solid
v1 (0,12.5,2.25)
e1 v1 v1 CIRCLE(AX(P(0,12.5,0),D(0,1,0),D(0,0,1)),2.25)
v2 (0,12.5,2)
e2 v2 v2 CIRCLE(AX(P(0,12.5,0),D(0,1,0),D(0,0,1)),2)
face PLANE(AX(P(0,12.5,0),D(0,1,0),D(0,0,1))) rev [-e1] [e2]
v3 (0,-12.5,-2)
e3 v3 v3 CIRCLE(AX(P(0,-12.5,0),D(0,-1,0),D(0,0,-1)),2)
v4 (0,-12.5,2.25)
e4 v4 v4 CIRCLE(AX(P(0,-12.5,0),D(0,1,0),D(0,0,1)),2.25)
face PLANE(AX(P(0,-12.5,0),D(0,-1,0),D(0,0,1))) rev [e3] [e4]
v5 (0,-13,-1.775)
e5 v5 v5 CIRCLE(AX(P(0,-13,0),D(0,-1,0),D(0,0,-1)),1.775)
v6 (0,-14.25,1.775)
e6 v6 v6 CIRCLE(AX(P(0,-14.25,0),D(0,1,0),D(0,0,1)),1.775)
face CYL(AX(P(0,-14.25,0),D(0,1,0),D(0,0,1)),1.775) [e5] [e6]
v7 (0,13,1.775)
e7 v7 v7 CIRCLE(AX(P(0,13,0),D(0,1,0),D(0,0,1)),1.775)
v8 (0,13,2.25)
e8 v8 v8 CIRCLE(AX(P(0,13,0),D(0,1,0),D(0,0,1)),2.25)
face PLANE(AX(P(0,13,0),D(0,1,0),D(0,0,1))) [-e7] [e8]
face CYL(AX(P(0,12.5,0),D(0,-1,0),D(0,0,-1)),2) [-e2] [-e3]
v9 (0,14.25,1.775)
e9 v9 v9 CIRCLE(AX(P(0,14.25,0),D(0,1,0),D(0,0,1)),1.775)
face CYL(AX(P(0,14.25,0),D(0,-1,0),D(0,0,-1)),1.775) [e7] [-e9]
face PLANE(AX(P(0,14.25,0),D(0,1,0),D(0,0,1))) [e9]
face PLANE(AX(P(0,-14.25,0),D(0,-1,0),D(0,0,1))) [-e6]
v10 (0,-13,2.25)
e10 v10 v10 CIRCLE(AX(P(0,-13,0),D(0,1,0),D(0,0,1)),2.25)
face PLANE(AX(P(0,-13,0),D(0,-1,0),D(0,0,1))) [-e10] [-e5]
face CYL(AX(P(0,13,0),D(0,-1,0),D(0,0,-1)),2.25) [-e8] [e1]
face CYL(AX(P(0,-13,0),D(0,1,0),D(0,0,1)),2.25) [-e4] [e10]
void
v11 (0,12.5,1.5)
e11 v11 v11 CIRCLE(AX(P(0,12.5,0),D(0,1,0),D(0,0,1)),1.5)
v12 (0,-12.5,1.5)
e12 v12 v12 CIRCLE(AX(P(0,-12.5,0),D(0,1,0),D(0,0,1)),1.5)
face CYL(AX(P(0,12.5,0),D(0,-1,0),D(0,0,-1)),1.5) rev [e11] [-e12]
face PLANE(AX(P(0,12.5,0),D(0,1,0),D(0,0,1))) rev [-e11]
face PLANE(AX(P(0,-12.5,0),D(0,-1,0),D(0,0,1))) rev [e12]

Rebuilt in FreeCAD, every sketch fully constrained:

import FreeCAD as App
import Part
import Sketcher
from FreeCAD import Vector
Q = App.Units.Quantity

doc = App.newDocument("Part")
body = doc.addObject("PartDesign::Body", "Body")

# Sketch on XZ plane
sketch1 = body.newObject("Sketcher::SketchObject", "Sketch")
sketch1.AttachmentSupport = (doc.getObject("XZ_Plane"), [""])
sketch1.MapMode = "FlatFace"
sketch1.addGeometry([
    Part.Circle(Vector(0, 0, 0), Vector(0, 0, 1), 2),
    Part.Circle(Vector(0, 0, 0), Vector(0, 0, 1), 1.5),
], False)
sketch1.addConstraint([
    Sketcher.Constraint("Coincident", 0, 3, -1, 1),
    Sketcher.Constraint("Coincident", 1, 3, -1, 1),
    Sketcher.Constraint("Diameter", 0, Q("4 mm")),
    Sketcher.Constraint("Diameter", 1, Q("3 mm")),
])
pad1 = body.newObject("PartDesign::Pad", "Pad")
pad1.Profile = sketch1
pad1.Length = 25
pad1.Midplane = True

# Sketch on XZ plane
sketch2 = body.newObject("Sketcher::SketchObject", "Sketch001")
sketch2.AttachmentSupport = (doc.getObject("XZ_Plane"), [""])
sketch2.MapMode = "FlatFace"
sketch2.AttachmentOffset = App.Placement(Vector(0, 0, -12.5), App.Rotation())
sketch2.addGeometry(Part.Circle(Vector(0, 0, 0), Vector(0, 0, 1), 2.25), False)
sketch2.addConstraint([
    Sketcher.Constraint("Coincident", 0, 3, -1, 1),
    Sketcher.Constraint("Diameter", 0, Q("4.5 mm")),
])
pad2 = body.newObject("PartDesign::Pad", "Pad001")
pad2.Profile = sketch2
pad2.Length = 0.5
pad2.Reversed = True

# Sketch on XZ plane
sketch3 = body.newObject("Sketcher::SketchObject", "Sketch002")
sketch3.AttachmentSupport = (doc.getObject("XZ_Plane"), [""])
sketch3.MapMode = "FlatFace"
sketch3.AttachmentOffset = App.Placement(Vector(0, 0, -13), App.Rotation())
sketch3.addGeometry(Part.Circle(Vector(0, 0, 0), Vector(0, 0, 1), 1.775), False)
sketch3.addConstraint([
    Sketcher.Constraint("Coincident", 0, 3, -1, 1),
    Sketcher.Constraint("Diameter", 0, Q("3.55 mm")),
])
pad3 = body.newObject("PartDesign::Pad", "Pad002")
pad3.Profile = sketch3
pad3.Length = 1.25
pad3.Reversed = True
doc.recompute()

mirrored = body.newObject("PartDesign::Mirrored", "Mirrored")
mirrored.Originals = [pad2, pad3]
mirrored.MirrorPlane = (doc.getObject("XZ_Plane"), [""])
body.Tip = mirrored

doc.recompute()
